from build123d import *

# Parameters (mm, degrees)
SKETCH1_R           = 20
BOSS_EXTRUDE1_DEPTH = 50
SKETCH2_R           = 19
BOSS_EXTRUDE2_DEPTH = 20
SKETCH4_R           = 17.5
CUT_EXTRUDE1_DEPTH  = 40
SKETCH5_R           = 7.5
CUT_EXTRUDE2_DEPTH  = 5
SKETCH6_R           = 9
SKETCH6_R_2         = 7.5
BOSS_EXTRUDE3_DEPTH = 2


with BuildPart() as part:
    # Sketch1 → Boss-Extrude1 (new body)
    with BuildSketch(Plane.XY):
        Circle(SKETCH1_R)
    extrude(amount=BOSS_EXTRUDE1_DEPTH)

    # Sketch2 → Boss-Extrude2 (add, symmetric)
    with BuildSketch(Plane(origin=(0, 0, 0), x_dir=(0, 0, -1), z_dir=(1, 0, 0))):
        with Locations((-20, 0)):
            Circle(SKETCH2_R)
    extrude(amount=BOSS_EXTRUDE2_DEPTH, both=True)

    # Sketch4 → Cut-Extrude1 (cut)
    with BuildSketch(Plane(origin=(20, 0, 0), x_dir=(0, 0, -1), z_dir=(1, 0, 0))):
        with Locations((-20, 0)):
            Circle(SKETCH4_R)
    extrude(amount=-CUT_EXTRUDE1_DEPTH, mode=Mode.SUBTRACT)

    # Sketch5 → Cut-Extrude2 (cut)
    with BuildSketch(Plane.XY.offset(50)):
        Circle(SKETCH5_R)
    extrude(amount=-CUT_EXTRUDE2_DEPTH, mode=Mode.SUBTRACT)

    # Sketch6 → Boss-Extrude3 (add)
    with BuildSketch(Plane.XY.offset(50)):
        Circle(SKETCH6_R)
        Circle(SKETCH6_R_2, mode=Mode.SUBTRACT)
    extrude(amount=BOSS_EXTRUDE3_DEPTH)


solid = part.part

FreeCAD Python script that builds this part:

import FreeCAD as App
import Part
import Sketcher
from FreeCAD import Vector
Q = App.Units.Quantity

doc = App.newDocument("Part")
body = doc.addObject("PartDesign::Body", "Body")

# Sketch on XY plane
sketch1 = doc.addObject("Sketcher::SketchObject", "Sketch")
body.addObject(sketch1)
sketch1.AttachmentSupport = (doc.XY_Plane, [""])
sketch1.MapMode = "FlatFace"
sketch1.addGeometry(Part.Circle(Vector(0, 0, 0), Vector(0, 0, 1), 20), False)
sketch1.addConstraint([
    Sketcher.Constraint("Coincident", 0, 3, -1, 1),
    Sketcher.Constraint("Diameter", 0, Q("40 mm")),
])
pad1 = doc.addObject("PartDesign::Pad", "Pad")
body.addObject(pad1)
pad1.Profile = sketch1
pad1.Length = 50

# Sketch on YZ plane
sketch2 = doc.addObject("Sketcher::SketchObject", "Sketch001")
body.addObject(sketch2)
sketch2.AttachmentSupport = (doc.YZ_Plane, [""])
sketch2.MapMode = "FlatFace"
sketch2.addGeometry(Part.Circle(Vector(0, 20, 0), Vector(0, 0, 1), 19), False)
sketch2.addConstraint([
    Sketcher.Constraint("PointOnObject", 0, 3, -2),
    Sketcher.Constraint("Diameter", 0, Q("38 mm")),
    Sketcher.Constraint("DistanceY", -1, 1, 0, 3, Q("20 mm")),
])
pad2 = doc.addObject("PartDesign::Pad", "Pad001")
body.addObject(pad2)
pad2.Profile = sketch2
pad2.Length = 40
pad2.Midplane = True

# Sketch on YZ plane
sketch3 = doc.addObject("Sketcher::SketchObject", "Sketch002")
body.addObject(sketch3)
sketch3.AttachmentSupport = (doc.YZ_Plane, [""])
sketch3.MapMode = "FlatFace"
sketch3.AttachmentOffset = App.Placement(Vector(0, 0, 20), App.Rotation())
sketch3.addGeometry(Part.Circle(Vector(0, 20, 0), Vector(0, 0, 1), 18), False)
sketch3.addConstraint([
    Sketcher.Constraint("PointOnObject", 0, 3, -2),
    Sketcher.Constraint("Diameter", 0, Q("35 mm")),
    Sketcher.Constraint("DistanceY", -1, 1, 0, 3, Q("20 mm")),
])
pocket1 = doc.addObject("PartDesign::Pocket", "Pocket")
body.addObject(pocket1)
pocket1.Profile = sketch3
pocket1.Length = 40

# Sketch on XY plane
sketch4 = doc.addObject("Sketcher::SketchObject", "Sketch003")
body.addObject(sketch4)
sketch4.AttachmentSupport = (doc.XY_Plane, [""])
sketch4.MapMode = "FlatFace"
sketch4.AttachmentOffset = App.Placement(Vector(0, 0, 50), App.Rotation())
sketch4.addGeometry(Part.Circle(Vector(0, 0, 0), Vector(0, 0, 1), 8), False)
sketch4.addConstraint([
    Sketcher.Constraint("Coincident", 0, 3, -1, 1),
    Sketcher.Constraint("Diameter", 0, Q("15 mm")),
])
pocket2 = doc.addObject("PartDesign::Pocket", "Pocket001")
body.addObject(pocket2)
pocket2.Profile = sketch4
pocket2.Length = 5

# Sketch on XY plane
sketch5 = doc.addObject("Sketcher::SketchObject", "Sketch004")
body.addObject(sketch5)
sketch5.AttachmentSupport = (doc.XY_Plane, [""])
sketch5.MapMode = "FlatFace"
sketch5.AttachmentOffset = App.Placement(Vector(0, 0, 50), App.Rotation())
sketch5.addGeometry([
    Part.Circle(Vector(0, 0, 0), Vector(0, 0, 1), 9),
    Part.Circle(Vector(0, 0, 0), Vector(0, 0, 1), 8),
], False)
sketch5.addConstraint([
    Sketcher.Constraint("Coincident", 0, 3, -1, 1),
    Sketcher.Constraint("Coincident", 1, 3, -1, 1),
    Sketcher.Constraint("Diameter", 0, Q("18 mm")),
    Sketcher.Constraint("Diameter", 1, Q("15 mm")),
])
pad3 = doc.addObject("PartDesign::Pad", "Pad002")
body.addObject(pad3)
pad3.Profile = sketch5
pad3.Length = 2

doc.recompute()
